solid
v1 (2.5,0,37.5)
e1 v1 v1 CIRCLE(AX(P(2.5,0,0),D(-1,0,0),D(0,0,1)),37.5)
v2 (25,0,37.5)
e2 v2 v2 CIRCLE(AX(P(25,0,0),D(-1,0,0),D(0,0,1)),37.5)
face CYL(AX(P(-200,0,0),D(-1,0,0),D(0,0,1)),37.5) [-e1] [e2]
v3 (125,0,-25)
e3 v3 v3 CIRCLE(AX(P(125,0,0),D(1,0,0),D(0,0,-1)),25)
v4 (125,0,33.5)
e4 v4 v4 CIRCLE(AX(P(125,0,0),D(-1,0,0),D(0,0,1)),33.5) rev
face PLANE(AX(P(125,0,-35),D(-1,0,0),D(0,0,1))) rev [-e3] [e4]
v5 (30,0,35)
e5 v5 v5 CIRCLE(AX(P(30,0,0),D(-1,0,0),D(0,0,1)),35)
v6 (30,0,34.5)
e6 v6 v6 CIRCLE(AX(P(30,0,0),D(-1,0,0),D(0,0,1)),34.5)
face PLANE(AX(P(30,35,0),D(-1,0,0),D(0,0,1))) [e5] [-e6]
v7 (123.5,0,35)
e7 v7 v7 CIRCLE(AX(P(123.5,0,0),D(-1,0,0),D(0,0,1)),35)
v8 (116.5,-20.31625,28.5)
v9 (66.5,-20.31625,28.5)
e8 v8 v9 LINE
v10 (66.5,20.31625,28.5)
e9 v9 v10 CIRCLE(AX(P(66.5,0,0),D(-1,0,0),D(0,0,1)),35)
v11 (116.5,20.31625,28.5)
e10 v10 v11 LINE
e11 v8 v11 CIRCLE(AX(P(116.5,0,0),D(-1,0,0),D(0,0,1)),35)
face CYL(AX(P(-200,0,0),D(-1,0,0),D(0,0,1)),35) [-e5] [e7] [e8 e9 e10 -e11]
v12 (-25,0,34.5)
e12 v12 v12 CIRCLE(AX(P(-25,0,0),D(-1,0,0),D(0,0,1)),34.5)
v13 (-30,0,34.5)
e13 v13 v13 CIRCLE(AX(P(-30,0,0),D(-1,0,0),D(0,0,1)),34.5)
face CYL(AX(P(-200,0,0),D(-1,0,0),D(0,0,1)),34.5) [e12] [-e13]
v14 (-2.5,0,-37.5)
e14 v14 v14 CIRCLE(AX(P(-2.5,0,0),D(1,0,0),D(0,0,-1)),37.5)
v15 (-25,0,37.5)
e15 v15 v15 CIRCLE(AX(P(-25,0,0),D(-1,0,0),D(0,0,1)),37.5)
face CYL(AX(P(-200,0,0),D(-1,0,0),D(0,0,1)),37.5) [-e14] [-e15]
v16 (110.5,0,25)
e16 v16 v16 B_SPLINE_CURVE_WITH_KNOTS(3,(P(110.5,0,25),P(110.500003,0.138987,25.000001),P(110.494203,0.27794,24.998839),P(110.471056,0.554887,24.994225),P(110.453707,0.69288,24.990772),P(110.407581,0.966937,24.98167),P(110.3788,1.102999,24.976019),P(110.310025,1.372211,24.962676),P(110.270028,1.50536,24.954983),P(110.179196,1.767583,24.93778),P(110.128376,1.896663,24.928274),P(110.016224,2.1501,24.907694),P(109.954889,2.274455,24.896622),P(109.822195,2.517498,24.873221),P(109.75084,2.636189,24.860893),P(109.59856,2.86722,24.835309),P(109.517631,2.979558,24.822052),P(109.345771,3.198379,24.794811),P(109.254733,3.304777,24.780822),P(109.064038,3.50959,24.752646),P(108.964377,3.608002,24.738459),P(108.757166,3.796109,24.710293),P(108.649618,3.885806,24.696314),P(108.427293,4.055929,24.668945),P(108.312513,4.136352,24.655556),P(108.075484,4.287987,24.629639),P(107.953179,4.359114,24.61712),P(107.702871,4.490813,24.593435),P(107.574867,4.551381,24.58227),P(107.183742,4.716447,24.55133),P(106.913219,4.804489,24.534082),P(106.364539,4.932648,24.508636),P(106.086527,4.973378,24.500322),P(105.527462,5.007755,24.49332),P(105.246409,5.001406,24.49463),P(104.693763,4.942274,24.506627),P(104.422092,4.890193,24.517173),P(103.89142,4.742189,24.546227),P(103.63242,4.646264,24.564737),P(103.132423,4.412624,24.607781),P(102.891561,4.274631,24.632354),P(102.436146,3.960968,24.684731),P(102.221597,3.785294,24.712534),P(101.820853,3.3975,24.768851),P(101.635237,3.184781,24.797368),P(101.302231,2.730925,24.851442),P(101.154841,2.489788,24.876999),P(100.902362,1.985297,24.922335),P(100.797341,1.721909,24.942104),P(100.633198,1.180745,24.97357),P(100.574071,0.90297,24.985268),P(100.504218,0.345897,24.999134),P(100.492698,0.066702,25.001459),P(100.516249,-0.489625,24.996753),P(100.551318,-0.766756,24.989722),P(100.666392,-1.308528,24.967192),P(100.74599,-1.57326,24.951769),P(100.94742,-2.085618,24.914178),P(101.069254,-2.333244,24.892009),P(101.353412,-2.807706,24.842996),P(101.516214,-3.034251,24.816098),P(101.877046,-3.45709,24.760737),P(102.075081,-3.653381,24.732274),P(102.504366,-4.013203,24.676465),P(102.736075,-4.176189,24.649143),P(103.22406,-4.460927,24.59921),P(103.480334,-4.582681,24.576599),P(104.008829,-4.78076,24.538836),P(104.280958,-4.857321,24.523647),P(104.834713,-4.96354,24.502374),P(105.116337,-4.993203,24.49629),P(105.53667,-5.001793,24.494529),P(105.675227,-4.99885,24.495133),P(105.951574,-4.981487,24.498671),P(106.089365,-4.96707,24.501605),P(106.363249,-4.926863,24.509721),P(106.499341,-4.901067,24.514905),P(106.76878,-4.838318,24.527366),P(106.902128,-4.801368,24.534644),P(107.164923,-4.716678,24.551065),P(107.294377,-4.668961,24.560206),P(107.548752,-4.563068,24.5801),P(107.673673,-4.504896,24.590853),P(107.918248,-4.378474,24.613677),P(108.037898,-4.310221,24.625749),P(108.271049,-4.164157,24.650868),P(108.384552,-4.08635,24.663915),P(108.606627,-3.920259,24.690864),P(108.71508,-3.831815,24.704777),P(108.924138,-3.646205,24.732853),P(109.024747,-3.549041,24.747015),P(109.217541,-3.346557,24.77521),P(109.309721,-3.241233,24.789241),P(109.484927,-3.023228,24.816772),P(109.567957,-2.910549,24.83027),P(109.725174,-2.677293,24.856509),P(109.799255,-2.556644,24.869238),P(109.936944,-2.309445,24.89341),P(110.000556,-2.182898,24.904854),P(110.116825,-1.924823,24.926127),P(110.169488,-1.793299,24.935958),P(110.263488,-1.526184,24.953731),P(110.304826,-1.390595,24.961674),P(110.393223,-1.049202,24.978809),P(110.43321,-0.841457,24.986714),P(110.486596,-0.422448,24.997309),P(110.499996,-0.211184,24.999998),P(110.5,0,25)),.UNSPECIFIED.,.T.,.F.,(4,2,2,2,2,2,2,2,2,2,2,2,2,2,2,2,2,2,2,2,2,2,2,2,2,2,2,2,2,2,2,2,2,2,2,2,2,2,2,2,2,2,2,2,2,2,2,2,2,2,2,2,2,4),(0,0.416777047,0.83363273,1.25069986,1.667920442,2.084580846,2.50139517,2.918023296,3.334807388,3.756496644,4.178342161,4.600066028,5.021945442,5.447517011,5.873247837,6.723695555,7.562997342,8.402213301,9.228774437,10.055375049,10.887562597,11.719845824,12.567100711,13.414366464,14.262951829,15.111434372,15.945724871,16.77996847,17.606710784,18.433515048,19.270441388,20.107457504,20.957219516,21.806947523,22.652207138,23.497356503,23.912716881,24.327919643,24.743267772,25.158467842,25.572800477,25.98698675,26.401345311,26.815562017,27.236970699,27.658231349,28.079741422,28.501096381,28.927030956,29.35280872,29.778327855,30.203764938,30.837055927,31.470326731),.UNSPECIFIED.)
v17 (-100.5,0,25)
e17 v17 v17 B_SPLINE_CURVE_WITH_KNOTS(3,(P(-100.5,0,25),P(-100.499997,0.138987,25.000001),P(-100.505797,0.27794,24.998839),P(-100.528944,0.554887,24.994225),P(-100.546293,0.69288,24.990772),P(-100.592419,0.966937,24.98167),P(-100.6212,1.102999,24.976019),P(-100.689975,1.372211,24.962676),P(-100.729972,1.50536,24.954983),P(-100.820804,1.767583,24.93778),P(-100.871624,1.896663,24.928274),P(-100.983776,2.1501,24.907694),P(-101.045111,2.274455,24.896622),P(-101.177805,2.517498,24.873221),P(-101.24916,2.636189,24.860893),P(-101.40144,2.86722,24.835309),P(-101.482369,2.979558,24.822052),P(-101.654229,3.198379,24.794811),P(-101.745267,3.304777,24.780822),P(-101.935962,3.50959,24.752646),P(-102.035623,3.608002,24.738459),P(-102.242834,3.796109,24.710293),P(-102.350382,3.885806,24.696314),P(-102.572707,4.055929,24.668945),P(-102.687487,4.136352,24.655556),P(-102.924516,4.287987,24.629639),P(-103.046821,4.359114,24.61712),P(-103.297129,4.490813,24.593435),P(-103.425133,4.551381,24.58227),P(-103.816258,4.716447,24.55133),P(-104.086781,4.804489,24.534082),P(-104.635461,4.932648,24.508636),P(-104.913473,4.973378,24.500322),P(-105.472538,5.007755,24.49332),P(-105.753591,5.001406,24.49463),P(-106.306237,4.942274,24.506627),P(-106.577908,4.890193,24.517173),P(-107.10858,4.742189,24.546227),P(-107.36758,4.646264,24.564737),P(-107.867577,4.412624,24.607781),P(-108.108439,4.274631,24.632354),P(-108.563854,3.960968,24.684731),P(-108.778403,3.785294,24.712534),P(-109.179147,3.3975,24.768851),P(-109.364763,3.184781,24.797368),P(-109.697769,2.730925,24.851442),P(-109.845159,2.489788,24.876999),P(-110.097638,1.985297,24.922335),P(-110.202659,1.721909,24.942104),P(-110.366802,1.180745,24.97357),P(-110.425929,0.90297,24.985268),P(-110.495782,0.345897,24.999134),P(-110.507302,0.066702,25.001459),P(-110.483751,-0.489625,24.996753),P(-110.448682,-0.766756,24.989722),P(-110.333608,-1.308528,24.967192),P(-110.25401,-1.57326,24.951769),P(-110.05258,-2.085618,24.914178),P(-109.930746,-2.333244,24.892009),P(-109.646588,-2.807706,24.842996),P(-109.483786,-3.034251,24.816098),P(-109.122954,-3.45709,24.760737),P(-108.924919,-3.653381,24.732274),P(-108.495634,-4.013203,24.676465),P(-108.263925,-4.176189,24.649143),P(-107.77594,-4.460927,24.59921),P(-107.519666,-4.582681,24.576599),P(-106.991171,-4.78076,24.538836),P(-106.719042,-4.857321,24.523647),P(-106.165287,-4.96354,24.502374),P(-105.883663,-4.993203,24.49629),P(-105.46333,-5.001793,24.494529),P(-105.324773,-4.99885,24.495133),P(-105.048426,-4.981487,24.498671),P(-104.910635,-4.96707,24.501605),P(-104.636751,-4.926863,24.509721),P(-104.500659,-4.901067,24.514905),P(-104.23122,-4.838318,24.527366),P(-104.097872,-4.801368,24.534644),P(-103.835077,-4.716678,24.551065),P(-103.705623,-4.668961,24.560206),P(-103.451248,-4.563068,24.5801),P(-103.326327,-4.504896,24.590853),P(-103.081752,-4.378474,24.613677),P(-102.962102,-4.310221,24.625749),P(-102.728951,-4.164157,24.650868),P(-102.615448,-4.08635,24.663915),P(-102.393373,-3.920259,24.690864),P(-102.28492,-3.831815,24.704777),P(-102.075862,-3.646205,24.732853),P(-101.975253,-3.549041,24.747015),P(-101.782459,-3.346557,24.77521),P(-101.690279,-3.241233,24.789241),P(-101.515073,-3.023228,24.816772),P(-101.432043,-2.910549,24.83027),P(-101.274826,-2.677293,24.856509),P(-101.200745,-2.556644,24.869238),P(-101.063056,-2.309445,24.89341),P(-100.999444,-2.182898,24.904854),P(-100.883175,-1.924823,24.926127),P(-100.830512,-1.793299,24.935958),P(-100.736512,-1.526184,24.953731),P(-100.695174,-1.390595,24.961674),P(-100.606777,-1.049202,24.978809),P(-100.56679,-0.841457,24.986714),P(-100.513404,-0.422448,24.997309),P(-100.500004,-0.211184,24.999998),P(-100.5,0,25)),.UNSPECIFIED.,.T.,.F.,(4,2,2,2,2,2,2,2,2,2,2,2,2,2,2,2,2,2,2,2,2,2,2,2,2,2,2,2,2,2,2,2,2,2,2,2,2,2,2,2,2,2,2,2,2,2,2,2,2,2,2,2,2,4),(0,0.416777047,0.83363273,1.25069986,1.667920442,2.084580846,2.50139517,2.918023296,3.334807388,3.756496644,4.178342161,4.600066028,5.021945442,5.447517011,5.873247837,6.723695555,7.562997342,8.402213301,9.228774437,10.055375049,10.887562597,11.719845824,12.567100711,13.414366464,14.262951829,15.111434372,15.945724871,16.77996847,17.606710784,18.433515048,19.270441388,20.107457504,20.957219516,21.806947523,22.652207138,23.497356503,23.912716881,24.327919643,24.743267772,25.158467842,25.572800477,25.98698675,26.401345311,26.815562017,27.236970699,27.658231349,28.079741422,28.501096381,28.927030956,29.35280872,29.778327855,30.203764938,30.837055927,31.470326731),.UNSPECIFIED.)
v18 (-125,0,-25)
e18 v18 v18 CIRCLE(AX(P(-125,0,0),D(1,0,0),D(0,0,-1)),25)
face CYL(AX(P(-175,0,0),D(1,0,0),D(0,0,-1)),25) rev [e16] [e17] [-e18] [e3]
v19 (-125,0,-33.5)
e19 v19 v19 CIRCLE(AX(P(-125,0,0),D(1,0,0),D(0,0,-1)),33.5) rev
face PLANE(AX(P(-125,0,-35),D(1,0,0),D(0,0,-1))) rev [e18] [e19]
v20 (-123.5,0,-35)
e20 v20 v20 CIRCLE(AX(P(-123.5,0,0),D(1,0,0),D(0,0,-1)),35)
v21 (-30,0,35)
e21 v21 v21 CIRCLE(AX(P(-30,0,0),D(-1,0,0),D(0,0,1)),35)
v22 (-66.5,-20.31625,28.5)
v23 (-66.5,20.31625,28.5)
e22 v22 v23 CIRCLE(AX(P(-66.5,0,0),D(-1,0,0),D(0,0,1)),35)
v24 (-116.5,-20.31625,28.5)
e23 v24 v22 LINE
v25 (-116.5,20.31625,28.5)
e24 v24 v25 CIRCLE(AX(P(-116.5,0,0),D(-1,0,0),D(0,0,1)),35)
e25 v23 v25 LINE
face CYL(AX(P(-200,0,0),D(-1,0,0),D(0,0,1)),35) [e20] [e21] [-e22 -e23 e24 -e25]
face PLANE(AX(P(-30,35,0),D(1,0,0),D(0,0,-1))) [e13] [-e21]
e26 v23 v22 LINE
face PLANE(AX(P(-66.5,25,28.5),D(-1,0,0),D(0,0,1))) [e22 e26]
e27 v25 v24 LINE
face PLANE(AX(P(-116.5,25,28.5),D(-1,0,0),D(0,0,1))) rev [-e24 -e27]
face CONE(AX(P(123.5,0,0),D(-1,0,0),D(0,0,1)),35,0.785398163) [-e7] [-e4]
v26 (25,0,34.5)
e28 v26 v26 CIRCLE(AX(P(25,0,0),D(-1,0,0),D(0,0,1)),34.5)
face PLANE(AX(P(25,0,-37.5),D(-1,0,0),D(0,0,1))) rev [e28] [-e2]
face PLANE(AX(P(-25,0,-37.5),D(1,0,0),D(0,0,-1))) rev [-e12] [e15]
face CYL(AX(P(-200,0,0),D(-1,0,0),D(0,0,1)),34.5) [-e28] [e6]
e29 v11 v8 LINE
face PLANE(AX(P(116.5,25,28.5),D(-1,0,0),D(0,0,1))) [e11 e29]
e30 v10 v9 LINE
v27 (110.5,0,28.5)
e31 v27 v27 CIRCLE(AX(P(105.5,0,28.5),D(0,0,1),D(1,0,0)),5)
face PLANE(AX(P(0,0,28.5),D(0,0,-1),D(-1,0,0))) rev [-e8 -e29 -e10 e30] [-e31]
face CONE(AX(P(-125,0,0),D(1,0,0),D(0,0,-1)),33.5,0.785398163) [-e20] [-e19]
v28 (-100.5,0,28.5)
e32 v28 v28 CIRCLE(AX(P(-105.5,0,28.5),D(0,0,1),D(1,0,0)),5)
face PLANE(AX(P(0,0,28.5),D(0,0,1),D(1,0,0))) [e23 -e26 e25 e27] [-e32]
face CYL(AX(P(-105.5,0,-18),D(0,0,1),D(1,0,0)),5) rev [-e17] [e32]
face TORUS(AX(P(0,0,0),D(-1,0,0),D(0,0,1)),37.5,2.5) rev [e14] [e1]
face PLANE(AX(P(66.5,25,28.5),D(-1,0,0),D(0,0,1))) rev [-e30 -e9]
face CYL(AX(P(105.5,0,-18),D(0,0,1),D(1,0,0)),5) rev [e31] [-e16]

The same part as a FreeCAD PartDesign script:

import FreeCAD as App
import Part
import Sketcher
Q = App.Units.Quantity


def edges_at(feature, points):
    """Names of the edges that pass closest to the given points."""
    edges = feature.Shape.Edges
    near = lambda p: min(range(len(edges)), key=lambda i: edges[i].distToShape(Part.Vertex(*p))[0])
    return sorted({f"Edge{near(p) + 1}" for p in points})

doc = App.newDocument("Part")
body = doc.addObject("PartDesign::Body", "Body")

sketch1 = body.newObject("Sketcher::SketchObject", "Sketch")
sketch1.AttachmentSupport = (doc.getObject("XZ_Plane"), [""])
sketch1.MapMode = "FlatFace"
sketch1.addGeometry(Part.LineSegment(App.Vector(25, -37.5, 0), App.Vector(-25, -37.5, 0)), False)
sketch1.addGeometry(Part.LineSegment(App.Vector(-25, -37.5, 0), App.Vector(-25, -35, 0)), False)
sketch1.addGeometry(Part.LineSegment(App.Vector(-25, -35, 0), App.Vector(-125, -35, 0)), False)
sketch1.addGeometry(Part.LineSegment(App.Vector(-125, -35, 0), App.Vector(-125, 0, 0)), False)
sketch1.addGeometry(Part.LineSegment(App.Vector(-125, 0, 0), App.Vector(125, 0, 0)), False)
sketch1.addGeometry(Part.LineSegment(App.Vector(125, 0, 0), App.Vector(125, -35, 0)), False)
sketch1.addGeometry(Part.LineSegment(App.Vector(125, -35, 0), App.Vector(25, -35, 0)), False)
sketch1.addGeometry(Part.LineSegment(App.Vector(25, -35, 0), App.Vector(25, -37.5, 0)), False)
sketch1.addConstraint(Sketcher.Constraint("Coincident", 0, 2, 1, 1))
sketch1.addConstraint(Sketcher.Constraint("Coincident", 1, 2, 2, 1))
sketch1.addConstraint(Sketcher.Constraint("Coincident", 2, 2, 3, 1))
sketch1.addConstraint(Sketcher.Constraint("Coincident", 3, 2, 4, 1))
sketch1.addConstraint(Sketcher.Constraint("Coincident", 4, 2, 5, 1))
sketch1.addConstraint(Sketcher.Constraint("Coincident", 5, 2, 6, 1))
sketch1.addConstraint(Sketcher.Constraint("Coincident", 6, 2, 7, 1))
sketch1.addConstraint(Sketcher.Constraint("Coincident", 7, 2, 0, 1))
sketch1.addConstraint(Sketcher.Constraint("Horizontal", 0))
sketch1.addConstraint(Sketcher.Constraint("Vertical", 1))
sketch1.addConstraint(Sketcher.Constraint("Horizontal", 2))
sketch1.addConstraint(Sketcher.Constraint("Vertical", 3))
sketch1.addConstraint(Sketcher.Constraint("Horizontal", 4))
sketch1.addConstraint(Sketcher.Constraint("Vertical", 5))
sketch1.addConstraint(Sketcher.Constraint("Horizontal", 6))
sketch1.addConstraint(Sketcher.Constraint("Vertical", 7))
sketch1.addConstraint(Sketcher.Constraint("Symmetric", 3, 2, 4, 2, -1, 1))
sketch1.addConstraint(Sketcher.Constraint("Symmetric", 1, 2, 6, 2, -2))
sketch1.addConstraint(Sketcher.Constraint("DistanceX", 0, 2, 0, 1, Q("50 mm")))
sketch1.addConstraint(Sketcher.Constraint("DistanceX", 2, 2, 2, 1, Q("100 mm")))
sketch1.addConstraint(Sketcher.Constraint("DistanceY", 3, 1, 3, 2, Q("35 mm")))
sketch1.addConstraint(Sketcher.Constraint("DistanceY", 1, 1, 1, 2, Q("2.5 mm")))
revolution = body.newObject("PartDesign::Revolution", "Revolution")
revolution.Profile = sketch1
revolution.ReferenceAxis = (sketch1, ["H_Axis"])
revolution.Angle = 360
doc.recompute()

chamfer = body.newObject("PartDesign::Chamfer", "Chamfer")
chamfer.Base = (revolution, edges_at(revolution, [(-125, 0, -35)]))
chamfer.Size = 1.5
doc.recompute()

chamfer2 = body.newObject("PartDesign::Chamfer", "Chamfer001")
chamfer2.Base = (chamfer, edges_at(chamfer, [(125, 0, -35)]))
chamfer2.Size = 1.5

sketch2 = body.newObject("Sketcher::SketchObject", "Sketch001")
sketch2.AttachmentSupport = (doc.getObject("XY_Plane"), [""])
sketch2.MapMode = "FlatFace"
sketch2.addGeometry(Part.Circle(App.Vector(0, 37.5, 0), App.Vector(0, 0, 1), 2.5), False)
sketch2.addGeometry(Part.LineSegment(App.Vector(-30, 35, 0), App.Vector(-30, 34.5, 0)), False)
sketch2.addGeometry(Part.LineSegment(App.Vector(-30, 34.5, 0), App.Vector(-25, 34.5, 0)), False)
sketch2.addGeometry(Part.LineSegment(App.Vector(-25, 34.5, 0), App.Vector(-25, 35, 0)), False)
sketch2.addGeometry(Part.LineSegment(App.Vector(-25, 35, 0), App.Vector(-30, 35, 0)), False)
sketch2.addGeometry(Part.LineSegment(App.Vector(25, 35, 0), App.Vector(25, 34.5, 0)), False)
sketch2.addGeometry(Part.LineSegment(App.Vector(25, 34.5, 0), App.Vector(30, 34.5, 0)), False)
sketch2.addGeometry(Part.LineSegment(App.Vector(30, 34.5, 0), App.Vector(30, 35, 0)), False)
sketch2.addGeometry(Part.LineSegment(App.Vector(30, 35, 0), App.Vector(25, 35, 0)), False)
sketch2.addConstraint(Sketcher.Constraint("Coincident", 1, 2, 2, 1))
sketch2.addConstraint(Sketcher.Constraint("Coincident", 2, 2, 3, 1))
sketch2.addConstraint(Sketcher.Constraint("Coincident", 3, 2, 4, 1))
sketch2.addConstraint(Sketcher.Constraint("Coincident", 4, 2, 1, 1))
sketch2.addConstraint(Sketcher.Constraint("Coincident", 5, 2, 6, 1))
sketch2.addConstraint(Sketcher.Constraint("Coincident", 6, 2, 7, 1))
sketch2.addConstraint(Sketcher.Constraint("Coincident", 7, 2, 8, 1))
sketch2.addConstraint(Sketcher.Constraint("Coincident", 8, 2, 5, 1))
sketch2.addConstraint(Sketcher.Constraint("Vertical", 1))
sketch2.addConstraint(Sketcher.Constraint("Horizontal", 2))
sketch2.addConstraint(Sketcher.Constraint("Vertical", 3))
sketch2.addConstraint(Sketcher.Constraint("Horizontal", 4))
sketch2.addConstraint(Sketcher.Constraint("Vertical", 5))
sketch2.addConstraint(Sketcher.Constraint("Horizontal", 6))
sketch2.addConstraint(Sketcher.Constraint("Vertical", 7))
sketch2.addConstraint(Sketcher.Constraint("Horizontal", 8))
sketch2.addConstraint(Sketcher.Constraint("Symmetric", 2, 2, 5, 2, -2))
sketch2.addConstraint(Sketcher.Constraint("Symmetric", 4, 2, 7, 2, -2))
sketch2.addConstraint(Sketcher.Constraint("PointOnObject", 0, 3, -2))
sketch2.addConstraint(Sketcher.Constraint("Diameter", 0, Q("5 mm")))
sketch2.addConstraint(Sketcher.Constraint("DistanceX", 2, 1, 2, 2, Q("5 mm")))
sketch2.addConstraint(Sketcher.Constraint("DistanceY", 1, 2, 1, 1, Q("0.5 mm")))
sketch2.addConstraint(Sketcher.Constraint("DistanceX", 1, 2, -1, 1, Q("30 mm")))
sketch2.addConstraint(Sketcher.Constraint("DistanceY", -1, 1, 3, 2, Q("35 mm")))
sketch2.addConstraint(Sketcher.Constraint("DistanceY", 1, 2, 0, 3, Q("3 mm")))
groove = body.newObject("PartDesign::Groove", "Groove")
groove.Profile = sketch2
groove.ReferenceAxis = (sketch2, ["H_Axis"])
groove.Angle = 360

sketch3 = body.newObject("Sketcher::SketchObject", "Sketch002")
sketch3.AttachmentSupport = (doc.getObject("YZ_Plane"), [""])
sketch3.MapMode = "FlatFace"
sketch3.AttachmentOffset = App.Placement(App.Vector(0, 0, 125), App.Rotation())
sketch3.addGeometry(Part.Circle(App.Vector(0, 0, 0), App.Vector(0, 0, 1), 25), False)
sketch3.addConstraint(Sketcher.Constraint("Coincident", 0, 3, -1, 1))
sketch3.addConstraint(Sketcher.Constraint("Diameter", 0, Q("50 mm")))
pocket1 = body.newObject("PartDesign::Pocket", "Pocket")
pocket1.Profile = sketch3
pocket1.Length = 300

sketch4 = body.newObject("Sketcher::SketchObject", "Sketch003")
sketch4.AttachmentSupport = (doc.getObject("XY_Plane"), [""])
sketch4.MapMode = "FlatFace"
sketch4.AttachmentOffset = App.Placement(App.Vector(0, 0, 35), App.Rotation())
sketch4.addGeometry(Part.LineSegment(App.Vector(66, 25, 0), App.Vector(66, -25, 0)), False)
sketch4.addGeometry(Part.LineSegment(App.Vector(66, -25, 0), App.Vector(116, -25, 0)), False)
sketch4.addGeometry(Part.LineSegment(App.Vector(116, -25, 0), App.Vector(116, 25, 0)), False)
sketch4.addGeometry(Part.LineSegment(App.Vector(116, 25, 0), App.Vector(66, 25, 0)), False)
sketch4.addGeometry(Part.LineSegment(App.Vector(-116, 25, 0), App.Vector(-116, -25, 0)), False)
sketch4.addGeometry(Part.LineSegment(App.Vector(-116, -25, 0), App.Vector(-66, -25, 0)), False)
sketch4.addGeometry(Part.LineSegment(App.Vector(-66, -25, 0), App.Vector(-66, 25, 0)), False)
sketch4.addGeometry(Part.LineSegment(App.Vector(-66, 25, 0), App.Vector(-116, 25, 0)), False)
sketch4.addConstraint(Sketcher.Constraint("Coincident", 0, 2, 1, 1))
sketch4.addConstraint(Sketcher.Constraint("Coincident", 1, 2, 2, 1))
sketch4.addConstraint(Sketcher.Constraint("Coincident", 2, 2, 3, 1))
sketch4.addConstraint(Sketcher.Constraint("Coincident", 3, 2, 0, 1))
sketch4.addConstraint(Sketcher.Constraint("Coincident", 4, 2, 5, 1))
sketch4.addConstraint(Sketcher.Constraint("Coincident", 5, 2, 6, 1))
sketch4.addConstraint(Sketcher.Constraint("Coincident", 6, 2, 7, 1))
sketch4.addConstraint(Sketcher.Constraint("Coincident", 7, 2, 4, 1))
sketch4.addConstraint(Sketcher.Constraint("Vertical", 0))
sketch4.addConstraint(Sketcher.Constraint("Horizontal", 1))
sketch4.addConstraint(Sketcher.Constraint("Vertical", 2))
sketch4.addConstraint(Sketcher.Constraint("Horizontal", 3))
sketch4.addConstraint(Sketcher.Constraint("Vertical", 4))
sketch4.addConstraint(Sketcher.Constraint("Horizontal", 5))
sketch4.addConstraint(Sketcher.Constraint("Vertical", 6))
sketch4.addConstraint(Sketcher.Constraint("Horizontal", 7))
sketch4.addConstraint(Sketcher.Constraint("Symmetric", 2, 2, 4, 2, -1, 1))
sketch4.addConstraint(Sketcher.Constraint("Symmetric", 0, 2, 6, 2, -1, 1))
sketch4.addConstraint(Sketcher.Constraint("Horizontal", 1, 2, 4, 2))
sketch4.addConstraint(Sketcher.Constraint("Equal", 7, 0))
sketch4.addConstraint(Sketcher.Constraint("DistanceX", 1, 1, 1, 2, Q("50 mm")))
sketch4.addConstraint(Sketcher.Constraint("DistanceX", 4, 2, 0, 2, Q("183 mm")))
pocket2 = body.newObject("PartDesign::Pocket", "Pocket001")
pocket2.Profile = sketch4
pocket2.Length = 6.5

sketch5 = body.newObject("Sketcher::SketchObject", "Sketch004")
sketch5.AttachmentSupport = (doc.getObject("XY_Plane"), [""])
sketch5.MapMode = "FlatFace"
sketch5.AttachmentOffset = App.Placement(App.Vector(0, 0, 28.5), App.Rotation())
sketch5.addGeometry(Part.Circle(App.Vector(-106, 0, 0), App.Vector(0, 0, 1), 5), False)
sketch5.addGeometry(Part.Circle(App.Vector(106, 0, 0), App.Vector(0, 0, 1), 5), False)
sketch5.addConstraint(Sketcher.Constraint("Equal", 0, 1))
sketch5.addConstraint(Sketcher.Constraint("Symmetric", 0, 3, 1, 3, -1, 1))
sketch5.addConstraint(Sketcher.Constraint("PointOnObject", 0, 3, -1))
sketch5.addConstraint(Sketcher.Constraint("Diameter", 0, Q("10 mm")))
sketch5.addConstraint(Sketcher.Constraint("DistanceX", 0, 3, 1, 3, Q("211 mm")))
pocket3 = body.newObject("PartDesign::Pocket", "Pocket002")
pocket3.Profile = sketch5
pocket3.Length = 46.5

doc.recompute()
